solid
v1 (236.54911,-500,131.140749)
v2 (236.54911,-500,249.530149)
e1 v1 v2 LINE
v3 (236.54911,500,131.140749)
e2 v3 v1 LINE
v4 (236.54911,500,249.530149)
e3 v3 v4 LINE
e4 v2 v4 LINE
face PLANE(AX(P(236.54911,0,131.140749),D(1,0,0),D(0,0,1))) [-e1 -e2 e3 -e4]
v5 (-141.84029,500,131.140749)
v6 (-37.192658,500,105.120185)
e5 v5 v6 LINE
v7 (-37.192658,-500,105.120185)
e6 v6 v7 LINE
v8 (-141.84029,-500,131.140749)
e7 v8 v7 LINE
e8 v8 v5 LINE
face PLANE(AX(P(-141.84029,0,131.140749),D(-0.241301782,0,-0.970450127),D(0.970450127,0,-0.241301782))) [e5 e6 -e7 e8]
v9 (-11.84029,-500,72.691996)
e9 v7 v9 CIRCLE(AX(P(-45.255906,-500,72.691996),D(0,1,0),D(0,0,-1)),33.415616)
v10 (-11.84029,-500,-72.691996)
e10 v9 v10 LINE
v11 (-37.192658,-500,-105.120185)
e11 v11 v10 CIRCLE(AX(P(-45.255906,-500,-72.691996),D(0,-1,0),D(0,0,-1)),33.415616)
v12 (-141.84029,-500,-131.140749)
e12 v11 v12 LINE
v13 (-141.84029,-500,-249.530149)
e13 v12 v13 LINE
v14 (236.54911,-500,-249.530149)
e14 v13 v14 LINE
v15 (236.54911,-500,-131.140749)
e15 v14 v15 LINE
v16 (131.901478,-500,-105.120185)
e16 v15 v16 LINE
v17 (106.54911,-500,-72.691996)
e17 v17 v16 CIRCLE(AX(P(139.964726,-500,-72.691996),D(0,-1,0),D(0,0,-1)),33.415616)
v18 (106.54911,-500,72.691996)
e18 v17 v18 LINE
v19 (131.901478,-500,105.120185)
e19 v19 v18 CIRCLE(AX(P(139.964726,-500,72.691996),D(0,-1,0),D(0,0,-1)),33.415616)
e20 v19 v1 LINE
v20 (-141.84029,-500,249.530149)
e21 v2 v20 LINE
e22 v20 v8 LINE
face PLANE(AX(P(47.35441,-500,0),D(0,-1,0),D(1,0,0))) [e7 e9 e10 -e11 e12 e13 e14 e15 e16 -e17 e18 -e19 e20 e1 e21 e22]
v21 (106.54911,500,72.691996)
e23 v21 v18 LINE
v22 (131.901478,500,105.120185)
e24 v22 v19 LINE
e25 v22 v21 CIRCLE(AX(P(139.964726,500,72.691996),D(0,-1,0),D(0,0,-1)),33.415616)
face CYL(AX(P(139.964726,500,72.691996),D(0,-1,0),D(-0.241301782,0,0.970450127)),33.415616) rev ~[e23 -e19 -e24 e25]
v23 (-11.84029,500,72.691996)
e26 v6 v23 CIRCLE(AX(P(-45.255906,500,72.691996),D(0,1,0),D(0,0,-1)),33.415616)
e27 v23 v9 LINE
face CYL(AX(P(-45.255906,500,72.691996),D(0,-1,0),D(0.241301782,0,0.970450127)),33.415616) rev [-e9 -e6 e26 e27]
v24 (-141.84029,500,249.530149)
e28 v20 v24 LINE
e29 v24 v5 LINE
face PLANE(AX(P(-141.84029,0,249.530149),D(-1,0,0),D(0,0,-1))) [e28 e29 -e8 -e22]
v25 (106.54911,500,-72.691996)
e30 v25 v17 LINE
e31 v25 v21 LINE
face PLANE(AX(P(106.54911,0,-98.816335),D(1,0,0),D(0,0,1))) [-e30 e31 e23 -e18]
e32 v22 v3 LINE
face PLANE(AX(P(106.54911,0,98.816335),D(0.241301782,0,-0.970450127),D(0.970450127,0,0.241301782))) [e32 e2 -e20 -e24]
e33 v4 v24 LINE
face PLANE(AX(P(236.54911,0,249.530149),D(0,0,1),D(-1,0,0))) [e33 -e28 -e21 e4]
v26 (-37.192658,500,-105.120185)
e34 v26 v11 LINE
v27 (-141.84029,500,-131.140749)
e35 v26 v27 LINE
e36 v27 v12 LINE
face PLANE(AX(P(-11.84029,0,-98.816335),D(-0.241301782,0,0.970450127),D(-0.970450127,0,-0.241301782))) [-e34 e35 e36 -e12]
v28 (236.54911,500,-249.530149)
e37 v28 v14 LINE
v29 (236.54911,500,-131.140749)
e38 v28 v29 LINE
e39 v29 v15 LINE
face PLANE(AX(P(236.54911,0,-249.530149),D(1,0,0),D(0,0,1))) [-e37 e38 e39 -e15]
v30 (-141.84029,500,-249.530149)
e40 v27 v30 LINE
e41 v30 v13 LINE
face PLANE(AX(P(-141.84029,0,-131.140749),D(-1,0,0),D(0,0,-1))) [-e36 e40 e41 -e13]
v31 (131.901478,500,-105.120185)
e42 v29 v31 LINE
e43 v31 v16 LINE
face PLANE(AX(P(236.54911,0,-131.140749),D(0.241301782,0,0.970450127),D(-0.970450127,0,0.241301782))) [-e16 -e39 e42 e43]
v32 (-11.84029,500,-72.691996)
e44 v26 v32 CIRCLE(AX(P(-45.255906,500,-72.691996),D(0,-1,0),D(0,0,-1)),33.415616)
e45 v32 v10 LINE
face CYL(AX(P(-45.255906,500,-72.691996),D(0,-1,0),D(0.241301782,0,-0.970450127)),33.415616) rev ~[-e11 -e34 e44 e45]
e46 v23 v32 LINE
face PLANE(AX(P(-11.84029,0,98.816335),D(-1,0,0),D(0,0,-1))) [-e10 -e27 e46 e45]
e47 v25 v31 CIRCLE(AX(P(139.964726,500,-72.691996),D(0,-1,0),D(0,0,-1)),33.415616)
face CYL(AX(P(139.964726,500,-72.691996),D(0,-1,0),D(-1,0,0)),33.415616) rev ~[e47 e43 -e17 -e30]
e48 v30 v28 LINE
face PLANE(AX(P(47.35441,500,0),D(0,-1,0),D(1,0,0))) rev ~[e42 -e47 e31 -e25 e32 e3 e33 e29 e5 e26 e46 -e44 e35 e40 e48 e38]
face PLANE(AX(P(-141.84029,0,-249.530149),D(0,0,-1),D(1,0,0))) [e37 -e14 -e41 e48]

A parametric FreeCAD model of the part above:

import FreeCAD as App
import Part
import Sketcher
Q = App.Units.Quantity


def edges_at(feature, points):
    """Names of the edges that pass closest to the given points."""
    edges = feature.Shape.Edges
    near = lambda p: min(range(len(edges)), key=lambda i: edges[i].distToShape(Part.Vertex(*p))[0])
    return sorted({f"Edge{near(p) + 1}" for p in points})


def add_polygon(sketch, points):
    """Adds a closed chain of lines whose ends are joined by coincident constraints."""
    first, n = sketch.GeometryCount, len(points)
    for a, b in zip(points, points[1:] + points[:1]):
        sketch.addGeometry(Part.LineSegment(App.Vector(*a, 0), App.Vector(*b, 0)), False)
    for i in range(n):
        sketch.addConstraint(Sketcher.Constraint("Coincident", first + i, 2, first + (i + 1) % n, 1))

doc = App.newDocument("Part")
body = doc.addObject("PartDesign::Body", "Body")

sketch1 = doc.addObject("Sketcher::SketchObject", "Sketch")
body.addObject(sketch1)
sketch1.AttachmentSupport = (doc.XZ_Plane, [""])
sketch1.MapMode = "FlatFace"
add_polygon(sketch1, [(-141.84029, 131.140749), (-11.84029, 98.816335), (-11.84029, -98.816335), (-141.84029, -131.140749), (-141.84029, -249.530149), (236.54911, -249.530149), (236.54911, -131.140749), (106.54911, -98.816335), (106.54911, 98.816335), (236.54911, 131.140749), (236.54911, 249.530149), (-141.84029, 249.530149)])
sketch1.addConstraint(Sketcher.Constraint("Vertical", 1))
sketch1.addConstraint(Sketcher.Constraint("Vertical", 3))
sketch1.addConstraint(Sketcher.Constraint("Horizontal", 4))
sketch1.addConstraint(Sketcher.Constraint("Vertical", 5))
sketch1.addConstraint(Sketcher.Constraint("Vertical", 7))
sketch1.addConstraint(Sketcher.Constraint("Vertical", 9))
sketch1.addConstraint(Sketcher.Constraint("Horizontal", 10))
sketch1.addConstraint(Sketcher.Constraint("Vertical", 11))
sketch1.addConstraint(Sketcher.Constraint("Symmetric", 5, 2, 8, 2, -1))
sketch1.addConstraint(Sketcher.Constraint("Symmetric", 3, 2, 10, 2, -1))
sketch1.addConstraint(Sketcher.Constraint("Parallel", 0, 6))
sketch1.addConstraint(Sketcher.Constraint("Parallel", 2, 8))
sketch1.addConstraint(Sketcher.Constraint("Horizontal", 2, 2, 5, 2))
sketch1.addConstraint(Sketcher.Constraint("Horizontal", 1, 2, 6, 2))
sketch1.addConstraint(Sketcher.Constraint("Horizontal", 0, 2, 7, 2))
sketch1.addConstraint(Sketcher.Constraint("Horizontal", 8, 2, 11, 2))
sketch1.addConstraint(Sketcher.Constraint("DistanceX", 2, 2, 1, 2, Q("130 mm")))
sketch1.addConstraint(Sketcher.Constraint("DistanceX", 4, 1, 4, 2, Q("378.3894 mm")))
sketch1.addConstraint(Sketcher.Constraint("DistanceY", 3, 2, 3, 1, Q("118.3894 mm")))
sketch1.addConstraint(Sketcher.Constraint("DistanceY", 1, 2, 1, 1, Q("197.63267 mm")))
sketch1.addConstraint(Sketcher.Constraint("DistanceY", 5, 2, 8, 2, Q("262.281498 mm")))
sketch1.addConstraint(Sketcher.Constraint("DistanceX", 0, 2, -1, 1, Q("11.84029 mm")))
pad1 = doc.addObject("PartDesign::Pad", "Pad")
body.addObject(pad1)
pad1.Profile = sketch1
pad1.Length = 1000
pad1.Midplane = True
doc.recompute()

fillet = doc.addObject("PartDesign::Fillet", "Fillet")
body.addObject(fillet)
fillet.Base = (pad1, edges_at(pad1, [
    (106.549, 0, -98.816),
    (-11.84, 0, 98.816),
    (-11.84, 0, -98.816),
    (106.549, 0, 98.816),
]))
fillet.Radius = 33.415616

doc.recompute()
